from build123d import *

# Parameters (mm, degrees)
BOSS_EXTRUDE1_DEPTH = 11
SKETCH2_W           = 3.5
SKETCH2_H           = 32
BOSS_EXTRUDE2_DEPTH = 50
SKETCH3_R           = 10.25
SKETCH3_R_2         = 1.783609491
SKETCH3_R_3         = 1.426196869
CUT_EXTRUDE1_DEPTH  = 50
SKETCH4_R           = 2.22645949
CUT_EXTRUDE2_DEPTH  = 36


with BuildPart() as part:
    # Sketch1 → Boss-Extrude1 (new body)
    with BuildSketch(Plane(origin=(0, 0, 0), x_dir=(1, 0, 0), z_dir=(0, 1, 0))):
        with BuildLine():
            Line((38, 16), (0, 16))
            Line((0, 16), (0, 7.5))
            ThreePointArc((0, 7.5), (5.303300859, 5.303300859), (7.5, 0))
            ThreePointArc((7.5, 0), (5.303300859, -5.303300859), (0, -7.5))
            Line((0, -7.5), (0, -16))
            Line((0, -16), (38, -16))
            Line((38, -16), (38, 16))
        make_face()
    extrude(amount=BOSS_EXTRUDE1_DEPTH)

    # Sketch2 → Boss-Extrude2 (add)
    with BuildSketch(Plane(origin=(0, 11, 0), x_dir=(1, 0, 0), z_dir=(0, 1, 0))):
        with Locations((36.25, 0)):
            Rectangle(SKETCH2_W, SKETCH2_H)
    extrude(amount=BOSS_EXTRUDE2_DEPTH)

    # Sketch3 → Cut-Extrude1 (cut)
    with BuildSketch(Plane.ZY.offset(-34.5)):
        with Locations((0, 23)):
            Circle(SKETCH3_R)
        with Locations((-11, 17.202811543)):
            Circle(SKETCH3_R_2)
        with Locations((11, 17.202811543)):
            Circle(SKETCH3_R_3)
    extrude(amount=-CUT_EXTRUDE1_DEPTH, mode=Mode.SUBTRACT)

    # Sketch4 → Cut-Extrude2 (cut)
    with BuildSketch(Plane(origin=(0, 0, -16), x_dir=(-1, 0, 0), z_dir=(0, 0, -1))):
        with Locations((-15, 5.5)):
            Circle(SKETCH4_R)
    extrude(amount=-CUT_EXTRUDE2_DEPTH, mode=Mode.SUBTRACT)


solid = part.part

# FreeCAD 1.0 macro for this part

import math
import FreeCAD as App
import Part
import Sketcher

V = App.Vector
Q = App.Units.Quantity

doc = App.newDocument("Part")
body = doc.addObject("PartDesign::Body", "Body")

sketch1 = body.newObject("Sketcher::SketchObject", "Sketch")
sketch1.AttachmentSupport = (doc.getObject("XZ_Plane"), [""])
sketch1.MapMode = "FlatFace"
sketch1.addGeometry([
    Part.LineSegment(V(38, -16, 0), V(0, -16, 0)),
    Part.LineSegment(V(0, -16, 0), V(0, -8, 0)),
    Part.ArcOfCircle(Part.Circle(V(0, 0, 0), V(0, 0, 1), 8), math.radians(-90), math.radians(0)),
    Part.ArcOfCircle(Part.Circle(V(0, 0, 0), V(0, 0, 1), 8), math.radians(0), math.radians(90)),
    Part.LineSegment(V(0, 8, 0), V(0, 16, 0)),
    Part.LineSegment(V(0, 16, 0), V(38, 16, 0)),
    Part.LineSegment(V(38, 16, 0), V(38, -16, 0)),
], False)
sketch1.addConstraint([
    Sketcher.Constraint("Coincident", 0, 2, 1, 1),
    Sketcher.Constraint("Coincident", 1, 2, 2, 1),
    Sketcher.Constraint("Tangent", 2, 2, 3, 1),
    Sketcher.Constraint("Coincident", 3, 2, 4, 1),
    Sketcher.Constraint("Coincident", 4, 2, 5, 1),
    Sketcher.Constraint("Coincident", 5, 2, 6, 1),
    Sketcher.Constraint("Coincident", 6, 2, 0, 1),
    Sketcher.Constraint("Horizontal", 0),
    Sketcher.Constraint("Vertical", 1),
    Sketcher.Constraint("Vertical", 4),
    Sketcher.Constraint("Horizontal", 5),
    Sketcher.Constraint("Vertical", 6),
    Sketcher.Constraint("Coincident", 2, 3, -1, 1),
    Sketcher.Constraint("Equal", 2, 3),
    Sketcher.Constraint("Symmetric", 0, 2, 4, 2, -1, 1),
    Sketcher.Constraint("PointOnObject", 0, 2, -2),
    Sketcher.Constraint("PointOnObject", 2, 2, -1),
    Sketcher.Constraint("Radius", 2, Q("7.5 mm")),
    Sketcher.Constraint("DistanceX", 0, 2, 0, 1, Q("38 mm")),
    Sketcher.Constraint("DistanceY", 6, 2, 6, 1, Q("32 mm")),
])
pad1 = body.newObject("PartDesign::Pad", "Pad")
pad1.Profile = sketch1
pad1.Length = 11
pad1.Reversed = True

sketch2 = body.newObject("Sketcher::SketchObject", "Sketch001")
sketch2.AttachmentSupport = (doc.getObject("XZ_Plane"), [""])
sketch2.MapMode = "FlatFace"
sketch2.AttachmentOffset = App.Placement(V(0, 0, -11), App.Rotation())
sketch2.addGeometry([
    Part.LineSegment(V(34.5, -16, 0), V(34.5, 16, 0)),
    Part.LineSegment(V(34.5, 16, 0), V(38, 16, 0)),
    Part.LineSegment(V(38, 16, 0), V(38, -16, 0)),
    Part.LineSegment(V(38, -16, 0), V(34.5, -16, 0)),
], False)
sketch2.addConstraint([
    Sketcher.Constraint("Coincident", 0, 2, 1, 1),
    Sketcher.Constraint("Coincident", 1, 2, 2, 1),
    Sketcher.Constraint("Coincident", 2, 2, 3, 1),
    Sketcher.Constraint("Coincident", 3, 2, 0, 1),
    Sketcher.Constraint("Vertical", 0),
    Sketcher.Constraint("Horizontal", 1),
    Sketcher.Constraint("Vertical", 2),
    Sketcher.Constraint("Horizontal", 3),
    Sketcher.Constraint("DistanceY", 0, 1, 0, 2, Q("32 mm")),
    Sketcher.Constraint("DistanceX", 1, 1, 1, 2, Q("3.5 mm")),
    Sketcher.Constraint("DistanceY", -1, 1, 0, 2, Q("16 mm")),
    Sketcher.Constraint("DistanceX", -1, 1, 1, 2, Q("38 mm")),
])
pad2 = body.newObject("PartDesign::Pad", "Pad001")
pad2.Profile = sketch2
pad2.Length = 50
pad2.Reversed = True

sketch3 = body.newObject("Sketcher::SketchObject", "Sketch002")
sketch3.AttachmentSupport = (doc.getObject("YZ_Plane"), [""])
sketch3.MapMode = "FlatFace"
sketch3.AttachmentOffset = App.Placement(V(0, 0, 34.5), App.Rotation())
sketch3.addGeometry([
    Part.Circle(V(23, 0, 0), V(0, 0, 1), 10.2),
    Part.Circle(V(17.2, -11, 0), V(0, 0, 1), 1.8),
    Part.Circle(V(17.2, 11, 0), V(0, 0, 1), 1.4),
], False)
sketch3.addConstraint([
    Sketcher.Constraint("Symmetric", 1, 3, 2, 3, -1),
    Sketcher.Constraint("PointOnObject", 0, 3, -1),
    Sketcher.Constraint("Diameter", 0, Q("20.5 mm")),
    Sketcher.Constraint("DistanceX", -1, 1, 0, 3, Q("23 mm")),
    Sketcher.Constraint("DistanceY", 1, 3, -1, 1, Q("11 mm")),
    Sketcher.Constraint("Diameter", 1, Q("3.567219 mm")),
    Sketcher.Constraint("Diameter", 2, Q("2.852394 mm")),
    Sketcher.Constraint("DistanceX", -1, 1, 1, 3, Q("17.202812 mm")),
])
pocket1 = body.newObject("PartDesign::Pocket", "Pocket")
pocket1.Profile = sketch3
pocket1.Length = 50
pocket1.Reversed = True

sketch4 = body.newObject("Sketcher::SketchObject", "Sketch003")
sketch4.AttachmentSupport = (doc.getObject("XY_Plane"), [""])
sketch4.MapMode = "FlatFace"
sketch4.AttachmentOffset = App.Placement(V(0, 0, -16), App.Rotation())
sketch4.addGeometry(Part.Circle(V(15, 5.5, 0), V(0, 0, 1), 2.2), False)
sketch4.addConstraint([
    Sketcher.Constraint("DistanceX", -1, 1, 0, 3, Q("15 mm")),
    Sketcher.Constraint("DistanceY", -1, 1, 0, 3, Q("5.5 mm")),
    Sketcher.Constraint("Diameter", 0, Q("4.452919 mm")),
])
pocket2 = body.newObject("PartDesign::Pocket", "Pocket001")
pocket2.Profile = sketch4
pocket2.Length = 36
pocket2.Reversed = True

doc.recompute()
